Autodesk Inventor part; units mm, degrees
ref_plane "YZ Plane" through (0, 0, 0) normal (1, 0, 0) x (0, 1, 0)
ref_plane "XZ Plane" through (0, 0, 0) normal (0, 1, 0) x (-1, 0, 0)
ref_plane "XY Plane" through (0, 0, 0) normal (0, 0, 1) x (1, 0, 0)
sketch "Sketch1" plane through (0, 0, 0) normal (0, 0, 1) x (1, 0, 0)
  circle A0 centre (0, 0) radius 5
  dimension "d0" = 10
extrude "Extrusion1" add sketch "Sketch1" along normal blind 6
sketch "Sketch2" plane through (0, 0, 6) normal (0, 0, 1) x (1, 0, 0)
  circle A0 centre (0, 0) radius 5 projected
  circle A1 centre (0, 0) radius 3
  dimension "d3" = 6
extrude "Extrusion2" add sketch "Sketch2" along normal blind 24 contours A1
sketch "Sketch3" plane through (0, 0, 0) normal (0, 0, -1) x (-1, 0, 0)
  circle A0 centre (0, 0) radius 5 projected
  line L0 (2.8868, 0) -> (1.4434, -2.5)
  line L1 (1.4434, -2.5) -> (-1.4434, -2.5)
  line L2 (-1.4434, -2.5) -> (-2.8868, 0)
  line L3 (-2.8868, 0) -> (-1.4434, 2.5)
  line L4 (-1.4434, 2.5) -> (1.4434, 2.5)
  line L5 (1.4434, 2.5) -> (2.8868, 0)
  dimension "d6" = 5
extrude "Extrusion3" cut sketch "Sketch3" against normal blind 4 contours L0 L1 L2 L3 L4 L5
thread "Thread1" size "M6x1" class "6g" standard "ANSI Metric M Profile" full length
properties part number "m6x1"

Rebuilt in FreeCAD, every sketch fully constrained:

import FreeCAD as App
import Part
import Sketcher
from FreeCAD import Vector
Q = App.Units.Quantity


def add_polygon(sketch, points):
    """Adds a closed chain of lines whose ends are joined by coincident constraints."""
    first, n = sketch.GeometryCount, len(points)
    for a, b in zip(points, points[1:] + points[:1]):
        sketch.addGeometry(Part.LineSegment(App.Vector(*a, 0), App.Vector(*b, 0)), False)
    for i in range(n):
        sketch.addConstraint(Sketcher.Constraint("Coincident", first + i, 2, first + (i + 1) % n, 1))

doc = App.newDocument("Part")
body = doc.addObject("PartDesign::Body", "Body")

# Sketch on XY plane
sketch1 = body.newObject("Sketcher::SketchObject", "Sketch")
sketch1.AttachmentSupport = (doc.getObject("XY_Plane"), [""])
sketch1.MapMode = "FlatFace"
sketch1.addGeometry(Part.Circle(Vector(0, 0, 0), Vector(0, 0, 1), 5), False)
sketch1.addConstraint(Sketcher.Constraint("Coincident", 0, 3, -1, 1))
sketch1.addConstraint(Sketcher.Constraint("Diameter", 0, 10.0))
pad1 = body.newObject("PartDesign::Pad", "Pad")
pad1.Profile = sketch1
pad1.Length = 6

# Sketch on XY plane
sketch2 = body.newObject("Sketcher::SketchObject", "Sketch001")
sketch2.AttachmentSupport = (doc.getObject("XY_Plane"), [""])
sketch2.MapMode = "FlatFace"
sketch2.AttachmentOffset = App.Placement(Vector(0, 0, 6), App.Rotation())
sketch2.addGeometry(Part.Circle(Vector(0, 0, 0), Vector(0, 0, 1), 3), False)
sketch2.addConstraint(Sketcher.Constraint("Coincident", 0, 3, -1, 1))
sketch2.addConstraint(Sketcher.Constraint("Diameter", 0, 6.0))
pad2 = body.newObject("PartDesign::Pad", "Pad001")
pad2.Profile = sketch2
pad2.Length = 24

# Sketch on XY plane
sketch3 = body.newObject("Sketcher::SketchObject", "Sketch002")
sketch3.AttachmentSupport = (doc.getObject("XY_Plane"), [""])
sketch3.MapMode = "FlatFace"
add_polygon(sketch3, [(-1.4, -2.5), (-2.9, 0), (-1.4, 2.5), (1.4, 2.5), (2.9, 0), (1.4, -2.5)])  # lines 0-5
sketch3.addConstraint(Sketcher.Constraint("Horizontal", 2))
sketch3.addConstraint(Sketcher.Constraint("Horizontal", 5))
sketch3.addConstraint(Sketcher.Constraint("Symmetric", 0, 2, 3, 2, -1, 1))
sketch3.addConstraint(Sketcher.Constraint("Symmetric", 1, 2, 4, 2, -1, 1))
sketch3.addConstraint(Sketcher.Constraint("PointOnObject", 0, 2, -1))
sketch3.addConstraint(Sketcher.Constraint("Parallel", 0, 3))
sketch3.addConstraint(Sketcher.Constraint("Vertical", 2, 2, 4, 2))
sketch3.addConstraint(Sketcher.Constraint("DistanceY", 4, 2, 2, 2, 5.0))
sketch3.addConstraint(Sketcher.Constraint("Angle", 0, Q("120.0004 deg")))
sketch3.addConstraint(Sketcher.Constraint("DistanceX", 2, 1, 2, 2, 2.8868))
pocket1 = body.newObject("PartDesign::Pocket", "Pocket")
pocket1.Profile = sketch3
pocket1.Length = 4
pocket1.Reversed = True

doc.recompute()
